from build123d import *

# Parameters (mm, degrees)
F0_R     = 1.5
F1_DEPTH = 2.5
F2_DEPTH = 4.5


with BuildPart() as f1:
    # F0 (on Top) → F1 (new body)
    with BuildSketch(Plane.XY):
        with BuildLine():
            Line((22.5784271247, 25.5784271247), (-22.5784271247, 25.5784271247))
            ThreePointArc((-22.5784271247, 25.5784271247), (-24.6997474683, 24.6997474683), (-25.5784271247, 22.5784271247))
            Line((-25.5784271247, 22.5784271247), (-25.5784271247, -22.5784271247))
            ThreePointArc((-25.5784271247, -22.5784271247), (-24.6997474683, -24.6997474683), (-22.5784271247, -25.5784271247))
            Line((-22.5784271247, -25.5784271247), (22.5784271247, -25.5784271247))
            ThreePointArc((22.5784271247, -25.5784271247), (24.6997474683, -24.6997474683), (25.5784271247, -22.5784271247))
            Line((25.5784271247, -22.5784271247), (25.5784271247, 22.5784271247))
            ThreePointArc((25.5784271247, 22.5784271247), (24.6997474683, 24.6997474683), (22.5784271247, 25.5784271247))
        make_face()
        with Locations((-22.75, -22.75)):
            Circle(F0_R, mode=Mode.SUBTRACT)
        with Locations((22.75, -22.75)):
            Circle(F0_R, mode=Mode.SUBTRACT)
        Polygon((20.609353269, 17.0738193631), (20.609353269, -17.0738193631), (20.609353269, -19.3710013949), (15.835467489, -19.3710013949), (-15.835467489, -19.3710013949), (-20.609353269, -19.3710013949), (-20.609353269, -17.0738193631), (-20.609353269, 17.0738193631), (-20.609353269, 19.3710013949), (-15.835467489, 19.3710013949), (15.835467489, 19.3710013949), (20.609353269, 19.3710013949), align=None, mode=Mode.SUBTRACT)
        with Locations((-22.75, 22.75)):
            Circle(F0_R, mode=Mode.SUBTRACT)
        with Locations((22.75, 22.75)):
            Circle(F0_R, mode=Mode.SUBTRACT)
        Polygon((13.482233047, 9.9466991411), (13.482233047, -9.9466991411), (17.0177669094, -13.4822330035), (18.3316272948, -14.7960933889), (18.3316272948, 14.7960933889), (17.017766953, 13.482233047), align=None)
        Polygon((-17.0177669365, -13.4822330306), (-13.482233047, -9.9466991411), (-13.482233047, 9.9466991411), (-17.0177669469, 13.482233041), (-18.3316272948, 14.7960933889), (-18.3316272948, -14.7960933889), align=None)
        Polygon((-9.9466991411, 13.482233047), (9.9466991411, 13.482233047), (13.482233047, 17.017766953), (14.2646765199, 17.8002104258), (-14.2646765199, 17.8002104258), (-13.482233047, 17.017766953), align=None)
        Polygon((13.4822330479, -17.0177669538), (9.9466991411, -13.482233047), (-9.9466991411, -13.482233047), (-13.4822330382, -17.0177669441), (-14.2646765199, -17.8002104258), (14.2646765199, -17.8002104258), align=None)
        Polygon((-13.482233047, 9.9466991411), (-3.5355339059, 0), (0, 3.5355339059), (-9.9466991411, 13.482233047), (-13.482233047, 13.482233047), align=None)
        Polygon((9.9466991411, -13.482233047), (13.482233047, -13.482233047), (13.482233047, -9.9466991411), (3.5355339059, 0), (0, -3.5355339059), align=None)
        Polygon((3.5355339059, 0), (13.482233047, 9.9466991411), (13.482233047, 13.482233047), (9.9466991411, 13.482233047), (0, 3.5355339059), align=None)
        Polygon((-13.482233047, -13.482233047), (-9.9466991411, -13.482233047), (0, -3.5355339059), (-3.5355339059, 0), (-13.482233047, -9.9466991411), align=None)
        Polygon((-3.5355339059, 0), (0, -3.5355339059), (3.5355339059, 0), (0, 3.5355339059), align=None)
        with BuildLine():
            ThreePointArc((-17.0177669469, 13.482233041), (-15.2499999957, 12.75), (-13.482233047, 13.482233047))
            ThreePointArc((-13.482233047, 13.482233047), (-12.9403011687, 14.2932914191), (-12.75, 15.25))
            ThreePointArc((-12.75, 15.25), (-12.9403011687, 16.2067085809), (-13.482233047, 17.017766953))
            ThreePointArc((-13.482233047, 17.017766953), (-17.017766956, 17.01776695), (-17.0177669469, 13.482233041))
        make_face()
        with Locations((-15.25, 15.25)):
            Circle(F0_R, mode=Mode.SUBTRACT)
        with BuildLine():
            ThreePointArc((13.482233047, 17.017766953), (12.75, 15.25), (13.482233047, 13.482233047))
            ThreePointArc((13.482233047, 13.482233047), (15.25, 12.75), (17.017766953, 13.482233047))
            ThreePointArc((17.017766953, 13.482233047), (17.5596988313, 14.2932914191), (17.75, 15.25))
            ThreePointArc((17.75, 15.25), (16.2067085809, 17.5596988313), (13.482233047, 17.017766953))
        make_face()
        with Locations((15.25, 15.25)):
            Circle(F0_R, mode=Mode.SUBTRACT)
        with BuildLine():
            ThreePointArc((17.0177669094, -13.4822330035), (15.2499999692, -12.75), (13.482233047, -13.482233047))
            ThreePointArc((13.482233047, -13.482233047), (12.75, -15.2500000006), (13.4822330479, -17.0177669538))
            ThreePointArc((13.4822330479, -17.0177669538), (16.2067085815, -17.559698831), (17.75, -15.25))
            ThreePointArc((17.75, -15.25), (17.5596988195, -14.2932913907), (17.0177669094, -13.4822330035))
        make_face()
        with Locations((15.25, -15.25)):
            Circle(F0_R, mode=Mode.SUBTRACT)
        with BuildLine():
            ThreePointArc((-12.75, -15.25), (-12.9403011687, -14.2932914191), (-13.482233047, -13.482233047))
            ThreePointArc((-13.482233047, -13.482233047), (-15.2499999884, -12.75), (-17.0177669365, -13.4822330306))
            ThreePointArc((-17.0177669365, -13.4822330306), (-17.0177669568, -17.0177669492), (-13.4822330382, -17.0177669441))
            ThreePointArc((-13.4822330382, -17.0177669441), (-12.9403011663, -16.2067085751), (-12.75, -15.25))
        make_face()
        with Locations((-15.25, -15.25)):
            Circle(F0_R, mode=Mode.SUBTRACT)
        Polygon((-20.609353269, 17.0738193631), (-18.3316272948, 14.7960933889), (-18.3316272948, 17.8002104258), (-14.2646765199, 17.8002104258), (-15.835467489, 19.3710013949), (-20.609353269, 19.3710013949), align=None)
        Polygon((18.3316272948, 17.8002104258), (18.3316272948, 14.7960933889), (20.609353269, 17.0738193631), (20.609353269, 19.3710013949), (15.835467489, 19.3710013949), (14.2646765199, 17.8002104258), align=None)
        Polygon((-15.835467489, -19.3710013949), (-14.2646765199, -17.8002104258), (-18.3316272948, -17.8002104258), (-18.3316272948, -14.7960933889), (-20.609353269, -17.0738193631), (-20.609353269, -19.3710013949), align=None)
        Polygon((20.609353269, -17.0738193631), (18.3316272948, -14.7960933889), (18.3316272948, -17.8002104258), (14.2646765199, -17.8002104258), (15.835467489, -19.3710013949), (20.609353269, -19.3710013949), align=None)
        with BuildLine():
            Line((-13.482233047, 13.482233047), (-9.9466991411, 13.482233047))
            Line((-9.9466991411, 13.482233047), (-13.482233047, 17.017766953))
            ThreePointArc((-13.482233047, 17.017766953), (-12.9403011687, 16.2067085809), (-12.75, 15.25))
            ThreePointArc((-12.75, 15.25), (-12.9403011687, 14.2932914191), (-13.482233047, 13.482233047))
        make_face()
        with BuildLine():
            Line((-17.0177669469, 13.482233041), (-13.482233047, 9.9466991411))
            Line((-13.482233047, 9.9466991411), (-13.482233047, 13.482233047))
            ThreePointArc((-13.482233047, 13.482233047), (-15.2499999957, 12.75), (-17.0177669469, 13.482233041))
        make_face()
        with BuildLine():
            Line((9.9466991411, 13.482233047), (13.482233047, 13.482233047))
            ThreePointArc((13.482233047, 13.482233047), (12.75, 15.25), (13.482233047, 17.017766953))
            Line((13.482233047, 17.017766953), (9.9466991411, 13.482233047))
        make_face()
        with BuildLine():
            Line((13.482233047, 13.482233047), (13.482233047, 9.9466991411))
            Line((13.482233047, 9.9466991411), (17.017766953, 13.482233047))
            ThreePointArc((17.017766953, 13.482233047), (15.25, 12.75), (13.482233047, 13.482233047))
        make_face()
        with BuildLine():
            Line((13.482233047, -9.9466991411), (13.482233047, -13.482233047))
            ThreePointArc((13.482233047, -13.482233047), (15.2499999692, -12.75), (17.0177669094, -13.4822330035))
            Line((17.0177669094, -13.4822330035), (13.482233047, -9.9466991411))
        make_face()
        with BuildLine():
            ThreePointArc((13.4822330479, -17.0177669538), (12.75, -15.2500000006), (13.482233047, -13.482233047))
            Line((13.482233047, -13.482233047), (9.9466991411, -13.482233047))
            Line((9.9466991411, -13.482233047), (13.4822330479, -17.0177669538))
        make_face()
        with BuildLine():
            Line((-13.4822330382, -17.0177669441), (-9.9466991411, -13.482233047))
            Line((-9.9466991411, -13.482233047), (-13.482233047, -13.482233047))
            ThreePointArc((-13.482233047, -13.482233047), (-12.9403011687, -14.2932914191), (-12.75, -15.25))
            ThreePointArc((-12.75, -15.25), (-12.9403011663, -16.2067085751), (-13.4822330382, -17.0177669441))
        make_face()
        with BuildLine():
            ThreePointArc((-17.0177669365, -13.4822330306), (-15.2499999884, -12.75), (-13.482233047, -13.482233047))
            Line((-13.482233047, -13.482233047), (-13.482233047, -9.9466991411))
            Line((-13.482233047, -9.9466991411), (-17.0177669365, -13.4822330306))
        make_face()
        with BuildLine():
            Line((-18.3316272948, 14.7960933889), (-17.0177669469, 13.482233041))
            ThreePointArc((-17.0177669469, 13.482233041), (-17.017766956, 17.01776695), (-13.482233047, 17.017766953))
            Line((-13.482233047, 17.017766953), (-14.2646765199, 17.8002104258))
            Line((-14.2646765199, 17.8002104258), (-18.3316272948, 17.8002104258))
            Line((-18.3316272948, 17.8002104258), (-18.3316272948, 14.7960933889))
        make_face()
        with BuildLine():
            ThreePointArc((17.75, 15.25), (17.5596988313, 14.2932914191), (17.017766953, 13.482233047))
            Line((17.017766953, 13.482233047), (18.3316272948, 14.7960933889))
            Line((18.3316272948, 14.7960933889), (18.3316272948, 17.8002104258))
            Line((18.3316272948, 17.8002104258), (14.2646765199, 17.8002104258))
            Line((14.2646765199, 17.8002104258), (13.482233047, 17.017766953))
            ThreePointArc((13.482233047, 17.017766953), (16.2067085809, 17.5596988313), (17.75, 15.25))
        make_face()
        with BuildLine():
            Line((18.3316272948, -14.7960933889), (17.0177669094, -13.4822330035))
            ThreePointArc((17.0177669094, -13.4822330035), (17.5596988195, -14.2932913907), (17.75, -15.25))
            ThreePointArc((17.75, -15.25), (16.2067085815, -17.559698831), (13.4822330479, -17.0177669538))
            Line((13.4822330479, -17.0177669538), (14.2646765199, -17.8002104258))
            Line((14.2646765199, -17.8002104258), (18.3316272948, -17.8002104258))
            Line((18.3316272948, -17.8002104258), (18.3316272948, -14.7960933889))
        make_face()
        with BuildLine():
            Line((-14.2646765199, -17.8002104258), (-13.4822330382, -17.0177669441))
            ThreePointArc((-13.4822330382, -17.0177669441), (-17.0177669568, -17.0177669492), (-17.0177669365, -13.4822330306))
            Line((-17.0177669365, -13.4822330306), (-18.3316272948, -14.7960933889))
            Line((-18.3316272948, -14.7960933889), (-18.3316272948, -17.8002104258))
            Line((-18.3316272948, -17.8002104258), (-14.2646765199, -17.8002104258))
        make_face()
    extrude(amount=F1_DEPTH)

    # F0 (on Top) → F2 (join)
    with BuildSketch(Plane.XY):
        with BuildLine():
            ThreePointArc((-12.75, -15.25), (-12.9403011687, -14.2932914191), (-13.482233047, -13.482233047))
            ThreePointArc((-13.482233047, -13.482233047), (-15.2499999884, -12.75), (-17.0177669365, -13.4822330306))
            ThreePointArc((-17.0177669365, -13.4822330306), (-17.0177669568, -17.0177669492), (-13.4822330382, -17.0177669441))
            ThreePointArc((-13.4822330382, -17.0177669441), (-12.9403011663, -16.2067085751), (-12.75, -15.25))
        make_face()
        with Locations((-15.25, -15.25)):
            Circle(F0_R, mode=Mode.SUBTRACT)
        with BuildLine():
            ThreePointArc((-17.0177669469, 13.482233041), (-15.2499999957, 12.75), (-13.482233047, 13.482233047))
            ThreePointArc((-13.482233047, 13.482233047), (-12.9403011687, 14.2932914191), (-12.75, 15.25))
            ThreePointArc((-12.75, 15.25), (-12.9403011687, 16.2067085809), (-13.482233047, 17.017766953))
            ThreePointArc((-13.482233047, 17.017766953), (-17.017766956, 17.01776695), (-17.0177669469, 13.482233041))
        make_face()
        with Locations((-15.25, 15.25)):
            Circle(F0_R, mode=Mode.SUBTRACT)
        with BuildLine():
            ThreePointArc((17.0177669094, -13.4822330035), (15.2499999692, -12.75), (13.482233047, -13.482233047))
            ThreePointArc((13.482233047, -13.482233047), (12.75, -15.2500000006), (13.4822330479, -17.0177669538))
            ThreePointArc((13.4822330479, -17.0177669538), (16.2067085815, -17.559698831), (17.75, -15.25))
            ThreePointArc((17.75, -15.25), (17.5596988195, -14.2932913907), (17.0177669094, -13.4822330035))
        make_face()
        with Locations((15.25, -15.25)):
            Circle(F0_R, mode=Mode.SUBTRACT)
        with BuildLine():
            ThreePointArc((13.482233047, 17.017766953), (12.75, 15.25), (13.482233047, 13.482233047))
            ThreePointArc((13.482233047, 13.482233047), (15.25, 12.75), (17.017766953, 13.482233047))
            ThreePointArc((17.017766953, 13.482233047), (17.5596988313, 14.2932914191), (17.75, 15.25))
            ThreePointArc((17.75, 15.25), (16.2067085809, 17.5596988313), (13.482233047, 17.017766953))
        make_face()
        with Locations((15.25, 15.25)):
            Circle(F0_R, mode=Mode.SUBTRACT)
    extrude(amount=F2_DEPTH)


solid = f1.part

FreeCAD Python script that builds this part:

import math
import FreeCAD as App
import Part
import Sketcher
Q = App.Units.Quantity

doc = App.newDocument("Part")
body = doc.addObject("PartDesign::Body", "Body")

sketch1 = doc.addObject("Sketcher::SketchObject", "Sketch")
body.addObject(sketch1)
sketch1.AttachmentSupport = (doc.XY_Plane, [""])
sketch1.MapMode = "FlatFace"
sketch1.addGeometry([
    Part.LineSegment(App.Vector(22.6, 25.6, 0), App.Vector(-22.6, 25.6, 0)),
    Part.ArcOfCircle(Part.Circle(App.Vector(-22.6, 22.6, 0), App.Vector(0, 0, 1), 3), math.radians(90), math.radians(180)),
    Part.LineSegment(App.Vector(-25.6, 22.6, 0), App.Vector(-25.6, -22.6, 0)),
    Part.ArcOfCircle(Part.Circle(App.Vector(-22.6, -22.6, 0), App.Vector(0, 0, 1), 3), math.radians(180), math.radians(270)),
    Part.LineSegment(App.Vector(-22.6, -25.6, 0), App.Vector(22.6, -25.6, 0)),
    Part.ArcOfCircle(Part.Circle(App.Vector(22.6, -22.6, 0), App.Vector(0, 0, 1), 3), math.radians(-90), math.radians(0)),
    Part.LineSegment(App.Vector(25.6, -22.6, 0), App.Vector(25.6, 22.6, 0)),
    Part.ArcOfCircle(Part.Circle(App.Vector(22.6, 22.6, 0), App.Vector(0, 0, 1), 3), math.radians(0), math.radians(90)),
    Part.Circle(App.Vector(-22.8, -22.8, 0), App.Vector(0, 0, 1), 1.5),
    Part.Circle(App.Vector(-15.2, -15.2, 0), App.Vector(0, 0, 1), 1.5),
    Part.LineSegment(App.Vector(-15.8, -19.4, 0), App.Vector(-14.3, -17.8, 0)),
    Part.LineSegment(App.Vector(-14.3, -17.8, 0), App.Vector(14.3, -17.8, 0)),
    Part.LineSegment(App.Vector(14.3, -17.8, 0), App.Vector(15.8, -19.4, 0)),
    Part.LineSegment(App.Vector(15.8, -19.4, 0), App.Vector(-15.8, -19.4, 0)),
    Part.Circle(App.Vector(22.8, -22.8, 0), App.Vector(0, 0, 1), 1.5),
    Part.Circle(App.Vector(15.2, -15.2, 0), App.Vector(0, 0, 1), 1.5),
    Part.LineSegment(App.Vector(9.9, -13.5, 0), App.Vector(-9.9, -13.5, 0)),
    Part.LineSegment(App.Vector(-9.9, -13.5, 0), App.Vector(0, -3.5, 0)),
    Part.LineSegment(App.Vector(0, -3.5, 0), App.Vector(9.9, -13.5, 0)),
    Part.LineSegment(App.Vector(-18.3, 14.8, 0), App.Vector(-18.3, -14.8, 0)),
    Part.LineSegment(App.Vector(-18.3, -14.8, 0), App.Vector(-20.6, -17.1, 0)),
    Part.LineSegment(App.Vector(-20.6, -17.1, 0), App.Vector(-20.6, 17.1, 0)),
    Part.LineSegment(App.Vector(-20.6, 17.1, 0), App.Vector(-18.3, 14.8, 0)),
    Part.LineSegment(App.Vector(-3.5, 0, 0), App.Vector(-13.5, -9.9, 0)),
    Part.LineSegment(App.Vector(-13.5, -9.9, 0), App.Vector(-13.5, 9.9, 0)),
    Part.LineSegment(App.Vector(-13.5, 9.9, 0), App.Vector(-3.5, 0, 0)),
    Part.Circle(App.Vector(-15.2, 15.2, 0), App.Vector(0, 0, 1), 1.5),
    Part.Circle(App.Vector(-22.8, 22.8, 0), App.Vector(0, 0, 1), 1.5),
    Part.LineSegment(App.Vector(13.5, 9.9, 0), App.Vector(13.5, -9.9, 0)),
    Part.LineSegment(App.Vector(13.5, -9.9, 0), App.Vector(3.5, 0, 0)),
    Part.LineSegment(App.Vector(3.5, 0, 0), App.Vector(13.5, 9.9, 0)),
    Part.LineSegment(App.Vector(0, 3.5, 0), App.Vector(-9.9, 13.5, 0)),
    Part.LineSegment(App.Vector(-9.9, 13.5, 0), App.Vector(9.9, 13.5, 0)),
    Part.LineSegment(App.Vector(9.9, 13.5, 0), App.Vector(0, 3.5, 0)),
    Part.LineSegment(App.Vector(20.6, -17.1, 0), App.Vector(18.3, -14.8, 0)),
    Part.LineSegment(App.Vector(18.3, -14.8, 0), App.Vector(18.3, 14.8, 0)),
    Part.LineSegment(App.Vector(18.3, 14.8, 0), App.Vector(20.6, 17.1, 0)),
    Part.LineSegment(App.Vector(20.6, 17.1, 0), App.Vector(20.6, -17.1, 0)),
    Part.LineSegment(App.Vector(15.8, 19.4, 0), App.Vector(14.3, 17.8, 0)),
    Part.LineSegment(App.Vector(14.3, 17.8, 0), App.Vector(-14.3, 17.8, 0)),
    Part.LineSegment(App.Vector(-14.3, 17.8, 0), App.Vector(-15.8, 19.4, 0)),
    Part.LineSegment(App.Vector(-15.8, 19.4, 0), App.Vector(15.8, 19.4, 0)),
    Part.Circle(App.Vector(15.2, 15.2, 0), App.Vector(0, 0, 1), 1.5),
    Part.Circle(App.Vector(22.8, 22.8, 0), App.Vector(0, 0, 1), 1.5),
], False)
sketch1.addConstraint([
    Sketcher.Constraint("Tangent", 0, 2, 1, 1),
    Sketcher.Constraint("Tangent", 1, 2, 2, 1),
    Sketcher.Constraint("Tangent", 2, 2, 3, 1),
    Sketcher.Constraint("Tangent", 3, 2, 4, 1),
    Sketcher.Constraint("Tangent", 4, 2, 5, 1),
    Sketcher.Constraint("Tangent", 5, 2, 6, 1),
    Sketcher.Constraint("Tangent", 6, 2, 7, 1),
    Sketcher.Constraint("Tangent", 7, 2, 0, 1),
    Sketcher.Constraint("Coincident", 10, 2, 11, 1),
    Sketcher.Constraint("Coincident", 11, 2, 12, 1),
    Sketcher.Constraint("Coincident", 12, 2, 13, 1),
    Sketcher.Constraint("Coincident", 13, 2, 10, 1),
    Sketcher.Constraint("Coincident", 16, 2, 17, 1),
    Sketcher.Constraint("Coincident", 17, 2, 18, 1),
    Sketcher.Constraint("Coincident", 18, 2, 16, 1),
    Sketcher.Constraint("Coincident", 19, 2, 20, 1),
    Sketcher.Constraint("Coincident", 20, 2, 21, 1),
    Sketcher.Constraint("Coincident", 21, 2, 22, 1),
    Sketcher.Constraint("Coincident", 22, 2, 19, 1),
    Sketcher.Constraint("Coincident", 23, 2, 24, 1),
    Sketcher.Constraint("Coincident", 24, 2, 25, 1),
    Sketcher.Constraint("Coincident", 25, 2, 23, 1),
    Sketcher.Constraint("Coincident", 28, 2, 29, 1),
    Sketcher.Constraint("Coincident", 29, 2, 30, 1),
    Sketcher.Constraint("Coincident", 30, 2, 28, 1),
    Sketcher.Constraint("Coincident", 31, 2, 32, 1),
    Sketcher.Constraint("Coincident", 32, 2, 33, 1),
    Sketcher.Constraint("Coincident", 33, 2, 31, 1),
    Sketcher.Constraint("Coincident", 34, 2, 35, 1),
    Sketcher.Constraint("Coincident", 35, 2, 36, 1),
    Sketcher.Constraint("Coincident", 36, 2, 37, 1),
    Sketcher.Constraint("Coincident", 37, 2, 34, 1),
    Sketcher.Constraint("Coincident", 38, 2, 39, 1),
    Sketcher.Constraint("Coincident", 39, 2, 40, 1),
    Sketcher.Constraint("Coincident", 40, 2, 41, 1),
    Sketcher.Constraint("Coincident", 41, 2, 38, 1),
    Sketcher.Constraint("Horizontal", 0),
    Sketcher.Constraint("Vertical", 2),
    Sketcher.Constraint("Horizontal", 4),
    Sketcher.Constraint("Vertical", 6),
    Sketcher.Constraint("Horizontal", 11),
    Sketcher.Constraint("Horizontal", 13),
    Sketcher.Constraint("Horizontal", 16),
    Sketcher.Constraint("Vertical", 19),
    Sketcher.Constraint("Vertical", 21),
    Sketcher.Constraint("Vertical", 24),
    Sketcher.Constraint("Vertical", 28),
    Sketcher.Constraint("Horizontal", 32),
    Sketcher.Constraint("Vertical", 35),
    Sketcher.Constraint("Vertical", 37),
    Sketcher.Constraint("Horizontal", 39),
    Sketcher.Constraint("Horizontal", 41),
    Sketcher.Constraint("Equal", 1, 3),
    Sketcher.Constraint("Equal", 3, 5),
    Sketcher.Constraint("Equal", 5, 7),
    Sketcher.Constraint("Equal", 8, 9),
    Sketcher.Constraint("Equal", 9, 14),
    Sketcher.Constraint("Equal", 14, 15),
    Sketcher.Constraint("Equal", 15, 26),
    Sketcher.Constraint("Equal", 26, 27),
    Sketcher.Constraint("Equal", 27, 42),
    Sketcher.Constraint("Equal", 42, 43),
    Sketcher.Constraint("Symmetric", 1, 3, 5, 3, -1, 1),
    Sketcher.Constraint("Symmetric", 15, 3, 26, 3, -1, 1),
    Sketcher.Constraint("Symmetric", 14, 3, 27, 3, -1, 1),
    Sketcher.Constraint("Symmetric", 9, 3, 42, 3, -1, 1),
    Sketcher.Constraint("Symmetric", 8, 3, 43, 3, -1, 1),
    Sketcher.Constraint("Symmetric", 24, 2, 28, 2, -1, 1),
    Sketcher.Constraint("Symmetric", 25, 2, 29, 2, -1, 1),
    Sketcher.Constraint("Symmetric", 18, 2, 31, 2, -1, 1),
    Sketcher.Constraint("Symmetric", 17, 2, 33, 2, -1, 1),
    Sketcher.Constraint("Symmetric", 22, 2, 34, 2, -1, 1),
    Sketcher.Constraint("Symmetric", 20, 2, 36, 2, -1, 1),
    Sketcher.Constraint("Symmetric", 10, 2, 38, 2, -1, 1),
    Sketcher.Constraint("Symmetric", 12, 2, 40, 2, -1, 1),
    Sketcher.Constraint("Symmetric", 8, 3, 14, 3, -2),
    Sketcher.Constraint("Symmetric", 9, 3, 15, 3, -2),
    Sketcher.Constraint("PointOnObject", 17, 2, -2),
    Sketcher.Constraint("PointOnObject", 25, 2, -1),
    Sketcher.Constraint("Perpendicular", 10, 12),
    Sketcher.Constraint("Perpendicular", 12, 17),
    Sketcher.Constraint("Perpendicular", 17, 18),
    Sketcher.Constraint("Perpendicular", 18, 20),
    Sketcher.Constraint("Perpendicular", 20, 22),
    Sketcher.Constraint("Perpendicular", 22, 23),
    Sketcher.Constraint("Perpendicular", 23, 25),
    Sketcher.Constraint("Perpendicular", 29, 30),
    Sketcher.Constraint("Perpendicular", 31, 33),
    Sketcher.Constraint("Perpendicular", 33, 34),
    Sketcher.Constraint("Perpendicular", 34, 36),
    Sketcher.Constraint("Parallel", 36, 38),
    Sketcher.Constraint("Perpendicular", 38, 40),
    Sketcher.Constraint("Horizontal", 23, 2, 28, 2),
    Sketcher.Constraint("Horizontal", 19, 2, 34, 2),
    Sketcher.Constraint("Vertical", 11, 2, 38, 2),
    Sketcher.Constraint("Equal", 4, 2),
    Sketcher.Constraint("Equal", 32, 24),
    Sketcher.Constraint("Diameter", 8, Q("3 mm")),
    Sketcher.Constraint("Radius", 1, Q("3 mm")),
    Sketcher.Constraint("DistanceX", 9, 3, 14, 3, Q("38 mm")),
    Sketcher.Constraint("DistanceY", 8, 3, 26, 3, Q("38 mm")),
    Sketcher.Constraint("DistanceX", 8, 3, 9, 3, Q("7.5 mm")),
    Sketcher.Constraint("DistanceY", 8, 3, 9, 3, Q("7.5 mm")),
    Sketcher.Constraint("DistanceX", 16, 2, 16, 1, Q("19.893398 mm")),
    Sketcher.Constraint("DistanceY", 12, 2, -1, 1, Q("19.371001 mm")),
    Sketcher.Constraint("DistanceY", 21, 1, 21, 2, Q("34.147639 mm")),
    Sketcher.Constraint("DistanceX", 3, 3, 19, 2, Q("4.2468 mm")),
    Sketcher.Constraint("Distance", 20, Q("3.221191 mm")),
    Sketcher.Constraint("DistanceX", 0, 2, 0, 1, Q("45.156854 mm")),
    Sketcher.Constraint("DistanceX", 11, 1, 11, 2, Q("28.529353 mm")),
    Sketcher.Constraint("DistanceX", 13, 2, 13, 1, Q("31.670935 mm")),
    Sketcher.Constraint("DistanceY", 13, 2, 16, 2, Q("5.888768 mm")),
    Sketcher.Constraint("DistanceX", 21, 2, 24, 2, Q("7.12712 mm")),
])
pad1 = doc.addObject("PartDesign::Pad", "Pad")
body.addObject(pad1)
pad1.Profile = sketch1
pad1.Length = 2.5

sketch2 = doc.addObject("Sketcher::SketchObject", "Sketch001")
body.addObject(sketch2)
sketch2.AttachmentSupport = (doc.XY_Plane, [""])
sketch2.MapMode = "FlatFace"
sketch2.addGeometry([
    Part.ArcOfCircle(Part.Circle(App.Vector(-15.2, -15.2, 0), App.Vector(0, 0, 1), 2.5), math.radians(0), math.radians(45)),
    Part.ArcOfCircle(Part.Circle(App.Vector(-15.2, -15.2, 0), App.Vector(0, 0, 1), 2.5), math.radians(45), math.radians(135)),
    Part.ArcOfCircle(Part.Circle(App.Vector(-15.2, -15.2, 0), App.Vector(0, 0, 1), 2.5), math.radians(135), math.radians(315)),
    Part.ArcOfCircle(Part.Circle(App.Vector(-15.2, -15.2, 0), App.Vector(0, 0, 1), 2.5), math.radians(-45), math.radians(0)),
    Part.Circle(App.Vector(-15.2, -15.2, 0), App.Vector(0, 0, 1), 1.5),
    Part.ArcOfCircle(Part.Circle(App.Vector(-15.2, 15.2, 0), App.Vector(0, 0, 1), 2.5), math.radians(-135), math.radians(-45)),
    Part.ArcOfCircle(Part.Circle(App.Vector(-15.2, 15.2, 0), App.Vector(0, 0, 1), 2.5), math.radians(-45), math.radians(0)),
    Part.ArcOfCircle(Part.Circle(App.Vector(-15.2, 15.2, 0), App.Vector(0, 0, 1), 2.5), math.radians(0), math.radians(45)),
    Part.ArcOfCircle(Part.Circle(App.Vector(-15.2, 15.2, 0), App.Vector(0, 0, 1), 2.5), math.radians(45), math.radians(225)),
    Part.Circle(App.Vector(-15.2, 15.2, 0), App.Vector(0, 0, 1), 1.5),
    Part.ArcOfCircle(Part.Circle(App.Vector(15.2, -15.2, 0), App.Vector(0, 0, 1), 2.5), math.radians(135), math.radians(225)),
    Part.ArcOfCircle(Part.Circle(App.Vector(15.2, -15.2, 0), App.Vector(0, 0, 1), 2.5), math.radians(-135), math.radians(0)),
    Part.ArcOfCircle(Part.Circle(App.Vector(15.2, -15.2, 0), App.Vector(0, 0, 1), 2.5), math.radians(0), math.radians(135)),
    Part.Circle(App.Vector(15.2, -15.2, 0), App.Vector(0, 0, 1), 1.5),
    Part.ArcOfCircle(Part.Circle(App.Vector(15.2, 15.2, 0), App.Vector(0, 0, 1), 2.5), math.radians(135), math.radians(225)),
    Part.ArcOfCircle(Part.Circle(App.Vector(15.2, 15.2, 0), App.Vector(0, 0, 1), 2.5), math.radians(-135), math.radians(-45)),
    Part.ArcOfCircle(Part.Circle(App.Vector(15.2, 15.2, 0), App.Vector(0, 0, 1), 2.5), math.radians(-45), math.radians(0)),
    Part.ArcOfCircle(Part.Circle(App.Vector(15.2, 15.2, 0), App.Vector(0, 0, 1), 2.5), math.radians(0), math.radians(135)),
    Part.Circle(App.Vector(15.2, 15.2, 0), App.Vector(0, 0, 1), 1.5),
], False)
sketch2.addConstraint([
    Sketcher.Constraint("Tangent", 0, 2, 1, 1),
    Sketcher.Constraint("Tangent", 1, 2, 2, 1),
    Sketcher.Constraint("Tangent", 2, 2, 3, 1),
    Sketcher.Constraint("Tangent", 3, 2, 0, 1),
    Sketcher.Constraint("Tangent", 5, 2, 6, 1),
    Sketcher.Constraint("Tangent", 6, 2, 7, 1),
    Sketcher.Constraint("Tangent", 7, 2, 8, 1),
    Sketcher.Constraint("Tangent", 8, 2, 5, 1),
    Sketcher.Constraint("Tangent", 10, 2, 11, 1),
    Sketcher.Constraint("Tangent", 11, 2, 12, 1),
    Sketcher.Constraint("Tangent", 12, 2, 10, 1),
    Sketcher.Constraint("Tangent", 14, 2, 15, 1),
    Sketcher.Constraint("Tangent", 15, 2, 16, 1),
    Sketcher.Constraint("Tangent", 16, 2, 17, 1),
    Sketcher.Constraint("Tangent", 17, 2, 14, 1),
    Sketcher.Constraint("Coincident", 4, 3, 0, 3),
    Sketcher.Constraint("Coincident", 9, 3, 5, 3),
    Sketcher.Constraint("Coincident", 13, 3, 10, 3),
    Sketcher.Constraint("Coincident", 18, 3, 14, 3),
    Sketcher.Constraint("Equal", 0, 1),
    Sketcher.Constraint("Equal", 3, 5),
    Sketcher.Constraint("Equal", 5, 6),
    Sketcher.Constraint("Equal", 4, 9),
    Sketcher.Constraint("Equal", 8, 10),
    Sketcher.Constraint("Equal", 9, 13),
    Sketcher.Constraint("Equal", 12, 14),
    Sketcher.Constraint("Equal", 14, 15),
    Sketcher.Constraint("Equal", 13, 18),
    Sketcher.Constraint("Symmetric", 5, 3, 10, 3, -1, 1),
    Sketcher.Constraint("Symmetric", 0, 3, 14, 3, -1, 1),
    Sketcher.Constraint("Symmetric", 0, 3, 10, 3, -2),
    Sketcher.Constraint("Horizontal", 0, 2, 1, 2),
    Sketcher.Constraint("Horizontal", 13, 3, 3, 2),
    Sketcher.Constraint("Horizontal", 18, 3, 6, 2),
    Sketcher.Constraint("Horizontal", 5, 2, 8, 2),
    Sketcher.Constraint("Horizontal", 2, 2, 10, 2),
    Sketcher.Constraint("Horizontal", 3, 2, 11, 2),
    Sketcher.Constraint("Horizontal", 1, 2, 12, 2),
    Sketcher.Constraint("Horizontal", 8, 2, 14, 2),
    Sketcher.Constraint("Horizontal", 14, 2, 15, 2),
    Sketcher.Constraint("Horizontal", 6, 2, 16, 2),
    Sketcher.Constraint("Horizontal", 7, 2, 17, 2),
    Sketcher.Constraint("Vertical", 0, 2, 2, 2),
    Sketcher.Constraint("Vertical", 2, 2, 5, 2),
    Sketcher.Constraint("Vertical", 5, 2, 7, 2),
    Sketcher.Constraint("Diameter", 4, Q("3 mm")),
    Sketcher.Constraint("Radius", 0, Q("2.5 mm")),
    Sketcher.Constraint("DistanceY", 0, 3, 5, 3, Q("30.5 mm")),
    Sketcher.Constraint("DistanceX", 0, 3, 10, 3, Q("30.5 mm")),
    Sketcher.Constraint("DistanceX", 0, 2, -1, 1, Q("13.482233 mm")),
])
pad2 = doc.addObject("PartDesign::Pad", "Pad001")
body.addObject(pad2)
pad2.Profile = sketch2
pad2.Length = 4.5

doc.recompute()
